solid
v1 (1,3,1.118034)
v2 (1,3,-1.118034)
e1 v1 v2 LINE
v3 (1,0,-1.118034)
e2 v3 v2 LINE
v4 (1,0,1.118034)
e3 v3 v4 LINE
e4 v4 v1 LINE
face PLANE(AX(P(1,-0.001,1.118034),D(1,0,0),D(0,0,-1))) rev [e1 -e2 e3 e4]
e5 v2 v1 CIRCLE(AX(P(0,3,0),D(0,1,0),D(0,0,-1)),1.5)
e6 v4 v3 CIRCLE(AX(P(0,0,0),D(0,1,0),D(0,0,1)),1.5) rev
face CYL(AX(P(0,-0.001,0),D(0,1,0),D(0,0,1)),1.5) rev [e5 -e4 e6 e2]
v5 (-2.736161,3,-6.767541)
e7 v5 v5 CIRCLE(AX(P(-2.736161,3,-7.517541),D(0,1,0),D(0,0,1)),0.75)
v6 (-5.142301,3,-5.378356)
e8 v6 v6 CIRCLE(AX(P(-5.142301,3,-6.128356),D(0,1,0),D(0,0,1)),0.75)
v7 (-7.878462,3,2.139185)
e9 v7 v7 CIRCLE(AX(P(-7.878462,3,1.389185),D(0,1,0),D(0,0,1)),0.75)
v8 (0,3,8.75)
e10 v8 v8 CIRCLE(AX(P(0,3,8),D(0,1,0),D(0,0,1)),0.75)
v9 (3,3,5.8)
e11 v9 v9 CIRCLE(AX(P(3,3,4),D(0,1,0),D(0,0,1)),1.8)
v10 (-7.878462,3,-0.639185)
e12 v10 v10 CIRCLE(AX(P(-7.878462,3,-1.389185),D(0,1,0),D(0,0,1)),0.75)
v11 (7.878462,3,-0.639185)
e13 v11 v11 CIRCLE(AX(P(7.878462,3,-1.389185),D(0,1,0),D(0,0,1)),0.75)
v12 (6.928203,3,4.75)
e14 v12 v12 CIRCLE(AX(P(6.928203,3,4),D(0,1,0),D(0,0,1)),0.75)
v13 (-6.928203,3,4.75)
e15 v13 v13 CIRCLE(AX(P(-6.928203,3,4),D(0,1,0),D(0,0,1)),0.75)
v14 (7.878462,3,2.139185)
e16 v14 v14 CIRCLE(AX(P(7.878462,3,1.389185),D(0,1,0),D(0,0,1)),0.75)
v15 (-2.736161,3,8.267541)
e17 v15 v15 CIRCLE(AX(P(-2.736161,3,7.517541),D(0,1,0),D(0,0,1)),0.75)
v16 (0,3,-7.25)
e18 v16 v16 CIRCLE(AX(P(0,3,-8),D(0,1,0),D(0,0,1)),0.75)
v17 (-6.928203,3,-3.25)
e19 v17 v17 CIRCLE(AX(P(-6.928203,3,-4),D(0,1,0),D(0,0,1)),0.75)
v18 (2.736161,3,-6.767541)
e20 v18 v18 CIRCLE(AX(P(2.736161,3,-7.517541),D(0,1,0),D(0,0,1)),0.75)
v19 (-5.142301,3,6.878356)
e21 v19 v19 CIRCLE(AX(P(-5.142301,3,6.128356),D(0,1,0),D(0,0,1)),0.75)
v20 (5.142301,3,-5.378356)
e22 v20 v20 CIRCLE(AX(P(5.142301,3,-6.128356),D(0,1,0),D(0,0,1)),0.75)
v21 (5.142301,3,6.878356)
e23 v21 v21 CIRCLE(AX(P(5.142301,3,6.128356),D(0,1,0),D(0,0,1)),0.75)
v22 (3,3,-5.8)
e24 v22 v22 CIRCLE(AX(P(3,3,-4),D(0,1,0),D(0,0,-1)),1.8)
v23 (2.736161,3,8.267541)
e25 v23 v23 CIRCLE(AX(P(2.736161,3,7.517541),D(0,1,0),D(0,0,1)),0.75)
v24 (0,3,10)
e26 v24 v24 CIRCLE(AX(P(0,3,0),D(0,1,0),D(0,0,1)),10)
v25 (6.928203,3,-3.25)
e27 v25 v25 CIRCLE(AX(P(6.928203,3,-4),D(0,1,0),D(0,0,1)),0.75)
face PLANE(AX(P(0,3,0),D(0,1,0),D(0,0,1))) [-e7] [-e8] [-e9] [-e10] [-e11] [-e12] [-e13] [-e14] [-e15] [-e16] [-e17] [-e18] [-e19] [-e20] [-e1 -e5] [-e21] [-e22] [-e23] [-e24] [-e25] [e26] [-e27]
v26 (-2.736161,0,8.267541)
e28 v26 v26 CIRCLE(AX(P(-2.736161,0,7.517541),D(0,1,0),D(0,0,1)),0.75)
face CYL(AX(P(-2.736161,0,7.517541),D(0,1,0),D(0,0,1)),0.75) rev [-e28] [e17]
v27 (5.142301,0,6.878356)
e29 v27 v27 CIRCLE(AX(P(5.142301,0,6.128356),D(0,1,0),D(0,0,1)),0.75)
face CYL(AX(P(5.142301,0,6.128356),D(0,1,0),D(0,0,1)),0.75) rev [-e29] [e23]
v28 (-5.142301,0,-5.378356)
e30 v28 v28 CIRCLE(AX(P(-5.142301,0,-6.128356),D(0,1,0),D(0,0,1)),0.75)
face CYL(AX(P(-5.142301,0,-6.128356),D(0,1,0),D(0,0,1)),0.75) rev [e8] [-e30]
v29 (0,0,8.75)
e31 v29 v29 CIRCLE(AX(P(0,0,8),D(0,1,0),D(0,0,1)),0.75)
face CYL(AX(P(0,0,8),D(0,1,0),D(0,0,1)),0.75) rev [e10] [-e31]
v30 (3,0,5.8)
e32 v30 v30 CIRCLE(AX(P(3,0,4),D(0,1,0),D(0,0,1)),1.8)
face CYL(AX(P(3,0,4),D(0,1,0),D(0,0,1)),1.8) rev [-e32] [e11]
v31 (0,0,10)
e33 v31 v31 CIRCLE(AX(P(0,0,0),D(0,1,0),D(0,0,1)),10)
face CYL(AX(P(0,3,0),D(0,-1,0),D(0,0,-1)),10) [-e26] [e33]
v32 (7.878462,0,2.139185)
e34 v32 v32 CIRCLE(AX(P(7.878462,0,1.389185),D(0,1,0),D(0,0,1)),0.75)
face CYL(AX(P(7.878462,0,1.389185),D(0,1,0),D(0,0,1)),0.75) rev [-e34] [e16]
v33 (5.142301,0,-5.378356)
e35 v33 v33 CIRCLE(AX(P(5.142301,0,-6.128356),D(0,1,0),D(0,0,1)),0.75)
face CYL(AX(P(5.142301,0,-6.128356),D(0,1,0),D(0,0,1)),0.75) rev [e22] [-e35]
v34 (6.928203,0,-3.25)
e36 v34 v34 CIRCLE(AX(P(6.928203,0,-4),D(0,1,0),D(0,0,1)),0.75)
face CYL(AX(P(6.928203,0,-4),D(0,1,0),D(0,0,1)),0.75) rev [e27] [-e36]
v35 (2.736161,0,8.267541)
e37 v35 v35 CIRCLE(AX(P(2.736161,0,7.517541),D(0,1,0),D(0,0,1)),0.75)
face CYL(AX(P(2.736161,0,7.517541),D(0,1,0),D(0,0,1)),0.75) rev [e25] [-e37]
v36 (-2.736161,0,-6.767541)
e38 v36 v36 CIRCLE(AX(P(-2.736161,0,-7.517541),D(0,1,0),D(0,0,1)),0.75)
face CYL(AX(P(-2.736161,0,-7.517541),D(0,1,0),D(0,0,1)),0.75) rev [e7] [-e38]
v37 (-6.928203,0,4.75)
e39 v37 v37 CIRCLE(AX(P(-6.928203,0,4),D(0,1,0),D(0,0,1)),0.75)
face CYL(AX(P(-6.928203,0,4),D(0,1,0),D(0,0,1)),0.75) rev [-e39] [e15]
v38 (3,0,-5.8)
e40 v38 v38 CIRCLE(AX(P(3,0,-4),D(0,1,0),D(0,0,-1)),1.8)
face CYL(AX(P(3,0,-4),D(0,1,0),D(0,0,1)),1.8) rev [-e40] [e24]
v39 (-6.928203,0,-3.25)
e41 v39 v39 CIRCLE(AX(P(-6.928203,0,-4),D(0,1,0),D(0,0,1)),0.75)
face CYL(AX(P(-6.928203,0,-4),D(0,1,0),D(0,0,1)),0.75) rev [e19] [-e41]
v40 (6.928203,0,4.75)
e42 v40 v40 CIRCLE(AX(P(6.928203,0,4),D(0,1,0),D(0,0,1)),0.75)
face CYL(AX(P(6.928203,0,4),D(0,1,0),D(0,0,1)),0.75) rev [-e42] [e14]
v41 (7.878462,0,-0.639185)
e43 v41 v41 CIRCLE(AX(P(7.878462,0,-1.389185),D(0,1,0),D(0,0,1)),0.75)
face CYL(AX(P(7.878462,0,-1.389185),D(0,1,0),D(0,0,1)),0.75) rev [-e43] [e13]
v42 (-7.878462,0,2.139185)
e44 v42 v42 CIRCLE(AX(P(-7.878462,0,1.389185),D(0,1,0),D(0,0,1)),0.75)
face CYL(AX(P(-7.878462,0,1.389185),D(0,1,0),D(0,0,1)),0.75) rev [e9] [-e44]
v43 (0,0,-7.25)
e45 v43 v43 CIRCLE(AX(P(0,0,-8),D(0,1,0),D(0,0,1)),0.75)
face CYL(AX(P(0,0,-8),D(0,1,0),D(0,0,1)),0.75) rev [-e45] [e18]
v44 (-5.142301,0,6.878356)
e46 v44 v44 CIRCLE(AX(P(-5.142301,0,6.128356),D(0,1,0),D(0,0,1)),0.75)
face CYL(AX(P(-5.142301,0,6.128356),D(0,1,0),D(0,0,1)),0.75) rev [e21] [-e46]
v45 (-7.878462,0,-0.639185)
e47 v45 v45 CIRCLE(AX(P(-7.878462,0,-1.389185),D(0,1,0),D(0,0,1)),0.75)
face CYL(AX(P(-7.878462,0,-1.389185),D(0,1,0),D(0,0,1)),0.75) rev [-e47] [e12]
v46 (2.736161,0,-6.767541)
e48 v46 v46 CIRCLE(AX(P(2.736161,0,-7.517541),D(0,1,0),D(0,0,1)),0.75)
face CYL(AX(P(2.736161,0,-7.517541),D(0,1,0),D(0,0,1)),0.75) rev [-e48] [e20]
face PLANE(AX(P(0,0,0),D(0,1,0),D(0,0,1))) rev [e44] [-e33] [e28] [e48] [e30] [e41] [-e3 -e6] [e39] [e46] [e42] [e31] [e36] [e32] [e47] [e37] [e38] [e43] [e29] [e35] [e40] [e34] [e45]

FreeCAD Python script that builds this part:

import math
import FreeCAD as App
import Part
import Sketcher

doc = App.newDocument("Part")
body = doc.addObject("PartDesign::Body", "Body")

# Sketch on XZ plane
sketch1 = doc.addObject("Sketcher::SketchObject", "Sketch")
body.addObject(sketch1)
sketch1.AttachmentSupport = (doc.XZ_Plane, [""])
sketch1.MapMode = "FlatFace"
sketch1.addGeometry(Part.Circle(App.Vector(0, 0, 0), App.Vector(0, 0, 1), 10), False)
sketch1.addConstraint([
    Sketcher.Constraint("Coincident", 0, 3, -1, 1),
    Sketcher.Constraint("Diameter", 0, 20.0),
])
pad1 = doc.addObject("PartDesign::Pad", "Pad")
body.addObject(pad1)
pad1.Profile = sketch1
pad1.Length = 3
pad1.Reversed = True

# Sketch on XZ plane
sketch2 = doc.addObject("Sketcher::SketchObject", "Sketch001")
body.addObject(sketch2)
sketch2.AttachmentSupport = (doc.XZ_Plane, [""])
sketch2.MapMode = "FlatFace"
sketch2.AttachmentOffset = App.Placement(App.Vector(0, 0, -3), App.Rotation())
sketch2.addGeometry([
    Part.Circle(App.Vector(0, -8, 0), App.Vector(0, 0, 1), 0.8),  # 0
    Part.Circle(App.Vector(2.7, -7.5, 0), App.Vector(0, 0, 1), 0.8),  # 1
    Part.Circle(App.Vector(5.1, -6.1, 0), App.Vector(0, 0, 1), 0.8),  # 2
    Part.Circle(App.Vector(6.9, -4, 0), App.Vector(0, 0, 1), 0.8),  # 3
    Part.Circle(App.Vector(7.9, -1.4, 0), App.Vector(0, 0, 1), 0.8),  # 4
    Part.Circle(App.Vector(7.9, 1.4, 0), App.Vector(0, 0, 1), 0.8),  # 5
    Part.Circle(App.Vector(6.9, 4, 0), App.Vector(0, 0, 1), 0.8),  # 6
    Part.Circle(App.Vector(5.1, 6.1, 0), App.Vector(0, 0, 1), 0.8),  # 7
    Part.Circle(App.Vector(2.7, 7.5, 0), App.Vector(0, 0, 1), 0.8),  # 8
    Part.Circle(App.Vector(0, 8, 0), App.Vector(0, 0, 1), 0.8),  # 9
    Part.Circle(App.Vector(-2.7, 7.5, 0), App.Vector(0, 0, 1), 0.8),  # 10
    Part.Circle(App.Vector(-5.1, 6.1, 0), App.Vector(0, 0, 1), 0.8),  # 11
    Part.Circle(App.Vector(-6.9, 4, 0), App.Vector(0, 0, 1), 0.8),  # 12
    Part.Circle(App.Vector(-7.9, 1.4, 0), App.Vector(0, 0, 1), 0.8),  # 13
    Part.Circle(App.Vector(-7.9, -1.4, 0), App.Vector(0, 0, 1), 0.8),  # 14
    Part.Circle(App.Vector(-6.9, -4, 0), App.Vector(0, 0, 1), 0.8),  # 15
    Part.Circle(App.Vector(-5.1, -6.1, 0), App.Vector(0, 0, 1), 0.8),  # 16
    Part.Circle(App.Vector(-2.7, -7.5, 0), App.Vector(0, 0, 1), 0.8),  # 17
], False)
sketch2.addConstraint([
    Sketcher.Constraint("Equal", 0, 1),
    Sketcher.Constraint("Equal", 1, 2),
    Sketcher.Constraint("Equal", 2, 3),
    Sketcher.Constraint("Equal", 3, 4),
    Sketcher.Constraint("Equal", 4, 5),
    Sketcher.Constraint("Equal", 5, 6),
    Sketcher.Constraint("Equal", 6, 7),
    Sketcher.Constraint("Equal", 7, 8),
    Sketcher.Constraint("Equal", 8, 9),
    Sketcher.Constraint("Equal", 9, 10),
    Sketcher.Constraint("Equal", 10, 11),
    Sketcher.Constraint("Equal", 11, 12),
    Sketcher.Constraint("Equal", 12, 13),
    Sketcher.Constraint("Equal", 13, 14),
    Sketcher.Constraint("Equal", 14, 15),
    Sketcher.Constraint("Equal", 15, 16),
    Sketcher.Constraint("Equal", 16, 17),
    Sketcher.Constraint("Symmetric", 0, 3, 9, 3, -1, 1),
    Sketcher.Constraint("Symmetric", 1, 3, 10, 3, -1, 1),
    Sketcher.Constraint("Symmetric", 2, 3, 11, 3, -1, 1),
    Sketcher.Constraint("Symmetric", 3, 3, 12, 3, -1, 1),
    Sketcher.Constraint("Symmetric", 4, 3, 13, 3, -1, 1),
    Sketcher.Constraint("Symmetric", 5, 3, 14, 3, -1, 1),
    Sketcher.Constraint("Symmetric", 6, 3, 15, 3, -1, 1),
    Sketcher.Constraint("Symmetric", 7, 3, 16, 3, -1, 1),
    Sketcher.Constraint("Symmetric", 8, 3, 17, 3, -1, 1),
    Sketcher.Constraint("Symmetric", 8, 3, 10, 3, -2),
    Sketcher.Constraint("Symmetric", 7, 3, 11, 3, -2),
    Sketcher.Constraint("Symmetric", 6, 3, 12, 3, -2),
    Sketcher.Constraint("Symmetric", 5, 3, 13, 3, -2),
    Sketcher.Constraint("PointOnObject", 0, 3, -2),
    Sketcher.Constraint("Diameter", 0, 1.5),
    Sketcher.Constraint("DistanceY", 0, 3, -1, 1, 8.0),
    Sketcher.Constraint("DistanceY", 3, 3, -1, 1, 4.0),
    Sketcher.Constraint("DistanceX", -1, 1, 2, 3, 5.142301),
    Sketcher.Constraint("DistanceX", 1, 3, 4, 3, 5.142301),
    Sketcher.Constraint("DistanceX", -1, 1, 1, 3, 2.736161),
    Sketcher.Constraint("DistanceY", 1, 3, -1, 1, 7.517541),
    Sketcher.Constraint("DistanceX", 3, 3, 4, 3, 0.950259),
    Sketcher.Constraint("DistanceY", 2, 3, 4, 3, 4.73917),
    Sketcher.Constraint("DistanceY", 4, 3, 5, 3, 2.778371),
])
pocket1 = doc.addObject("PartDesign::Pocket", "Pocket")
body.addObject(pocket1)
pocket1.Profile = sketch2
pocket1.Type = "ThroughAll"
pocket1.Reversed = True

# Sketch on XZ plane
sketch3 = doc.addObject("Sketcher::SketchObject", "Sketch002")
body.addObject(sketch3)
sketch3.AttachmentSupport = (doc.XZ_Plane, [""])
sketch3.MapMode = "FlatFace"
sketch3.AttachmentOffset = App.Placement(App.Vector(0, 0, -3), App.Rotation())
sketch3.addGeometry([
    Part.Circle(App.Vector(3, 4, 0), App.Vector(0, 0, 1), 1.8),
    Part.Circle(App.Vector(3, -4, 0), App.Vector(0, 0, 1), 1.8),
], False)
sketch3.addConstraint([
    Sketcher.Constraint("Equal", 0, 1),
    Sketcher.Constraint("Symmetric", 0, 3, 1, 3, -1),
    Sketcher.Constraint("Diameter", 0, 3.6),
    Sketcher.Constraint("DistanceX", -1, 1, 0, 3, 3.0),
    Sketcher.Constraint("DistanceY", -1, 1, 0, 3, 4.0),
])
pocket2 = doc.addObject("PartDesign::Pocket", "Pocket001")
body.addObject(pocket2)
pocket2.Profile = sketch3
pocket2.Type = "ThroughAll"
pocket2.Reversed = True

# Sketch on XZ plane
sketch4 = doc.addObject("Sketcher::SketchObject", "Sketch003")
body.addObject(sketch4)
sketch4.AttachmentSupport = (doc.XZ_Plane, [""])
sketch4.MapMode = "FlatFace"
sketch4.AttachmentOffset = App.Placement(App.Vector(0, 0, -3), App.Rotation())
sketch4.addGeometry([
    Part.LineSegment(App.Vector(1, 1.1, 0), App.Vector(1, -1.1, 0)),
    Part.ArcOfCircle(Part.Circle(App.Vector(0, 0, 0), App.Vector(0, 0, 1), 1.5), math.radians(48), math.radians(312)),
], False)
sketch4.addConstraint([
    Sketcher.Constraint("Coincident", 0, 1, 1, 1),
    Sketcher.Constraint("Coincident", 1, 2, 0, 2),
    Sketcher.Constraint("Vertical", 0),
    Sketcher.Constraint("Coincident", 1, 3, -1, 1),
    Sketcher.Constraint("Radius", 1, 1.5),
    Sketcher.Constraint("DistanceX", -1, 1, 0, 1, 1.0),
])
pocket3 = doc.addObject("PartDesign::Pocket", "Pocket002")
body.addObject(pocket3)
pocket3.Profile = sketch4
pocket3.Type = "UpToFirst"
pocket3.Reversed = True

doc.recompute()
